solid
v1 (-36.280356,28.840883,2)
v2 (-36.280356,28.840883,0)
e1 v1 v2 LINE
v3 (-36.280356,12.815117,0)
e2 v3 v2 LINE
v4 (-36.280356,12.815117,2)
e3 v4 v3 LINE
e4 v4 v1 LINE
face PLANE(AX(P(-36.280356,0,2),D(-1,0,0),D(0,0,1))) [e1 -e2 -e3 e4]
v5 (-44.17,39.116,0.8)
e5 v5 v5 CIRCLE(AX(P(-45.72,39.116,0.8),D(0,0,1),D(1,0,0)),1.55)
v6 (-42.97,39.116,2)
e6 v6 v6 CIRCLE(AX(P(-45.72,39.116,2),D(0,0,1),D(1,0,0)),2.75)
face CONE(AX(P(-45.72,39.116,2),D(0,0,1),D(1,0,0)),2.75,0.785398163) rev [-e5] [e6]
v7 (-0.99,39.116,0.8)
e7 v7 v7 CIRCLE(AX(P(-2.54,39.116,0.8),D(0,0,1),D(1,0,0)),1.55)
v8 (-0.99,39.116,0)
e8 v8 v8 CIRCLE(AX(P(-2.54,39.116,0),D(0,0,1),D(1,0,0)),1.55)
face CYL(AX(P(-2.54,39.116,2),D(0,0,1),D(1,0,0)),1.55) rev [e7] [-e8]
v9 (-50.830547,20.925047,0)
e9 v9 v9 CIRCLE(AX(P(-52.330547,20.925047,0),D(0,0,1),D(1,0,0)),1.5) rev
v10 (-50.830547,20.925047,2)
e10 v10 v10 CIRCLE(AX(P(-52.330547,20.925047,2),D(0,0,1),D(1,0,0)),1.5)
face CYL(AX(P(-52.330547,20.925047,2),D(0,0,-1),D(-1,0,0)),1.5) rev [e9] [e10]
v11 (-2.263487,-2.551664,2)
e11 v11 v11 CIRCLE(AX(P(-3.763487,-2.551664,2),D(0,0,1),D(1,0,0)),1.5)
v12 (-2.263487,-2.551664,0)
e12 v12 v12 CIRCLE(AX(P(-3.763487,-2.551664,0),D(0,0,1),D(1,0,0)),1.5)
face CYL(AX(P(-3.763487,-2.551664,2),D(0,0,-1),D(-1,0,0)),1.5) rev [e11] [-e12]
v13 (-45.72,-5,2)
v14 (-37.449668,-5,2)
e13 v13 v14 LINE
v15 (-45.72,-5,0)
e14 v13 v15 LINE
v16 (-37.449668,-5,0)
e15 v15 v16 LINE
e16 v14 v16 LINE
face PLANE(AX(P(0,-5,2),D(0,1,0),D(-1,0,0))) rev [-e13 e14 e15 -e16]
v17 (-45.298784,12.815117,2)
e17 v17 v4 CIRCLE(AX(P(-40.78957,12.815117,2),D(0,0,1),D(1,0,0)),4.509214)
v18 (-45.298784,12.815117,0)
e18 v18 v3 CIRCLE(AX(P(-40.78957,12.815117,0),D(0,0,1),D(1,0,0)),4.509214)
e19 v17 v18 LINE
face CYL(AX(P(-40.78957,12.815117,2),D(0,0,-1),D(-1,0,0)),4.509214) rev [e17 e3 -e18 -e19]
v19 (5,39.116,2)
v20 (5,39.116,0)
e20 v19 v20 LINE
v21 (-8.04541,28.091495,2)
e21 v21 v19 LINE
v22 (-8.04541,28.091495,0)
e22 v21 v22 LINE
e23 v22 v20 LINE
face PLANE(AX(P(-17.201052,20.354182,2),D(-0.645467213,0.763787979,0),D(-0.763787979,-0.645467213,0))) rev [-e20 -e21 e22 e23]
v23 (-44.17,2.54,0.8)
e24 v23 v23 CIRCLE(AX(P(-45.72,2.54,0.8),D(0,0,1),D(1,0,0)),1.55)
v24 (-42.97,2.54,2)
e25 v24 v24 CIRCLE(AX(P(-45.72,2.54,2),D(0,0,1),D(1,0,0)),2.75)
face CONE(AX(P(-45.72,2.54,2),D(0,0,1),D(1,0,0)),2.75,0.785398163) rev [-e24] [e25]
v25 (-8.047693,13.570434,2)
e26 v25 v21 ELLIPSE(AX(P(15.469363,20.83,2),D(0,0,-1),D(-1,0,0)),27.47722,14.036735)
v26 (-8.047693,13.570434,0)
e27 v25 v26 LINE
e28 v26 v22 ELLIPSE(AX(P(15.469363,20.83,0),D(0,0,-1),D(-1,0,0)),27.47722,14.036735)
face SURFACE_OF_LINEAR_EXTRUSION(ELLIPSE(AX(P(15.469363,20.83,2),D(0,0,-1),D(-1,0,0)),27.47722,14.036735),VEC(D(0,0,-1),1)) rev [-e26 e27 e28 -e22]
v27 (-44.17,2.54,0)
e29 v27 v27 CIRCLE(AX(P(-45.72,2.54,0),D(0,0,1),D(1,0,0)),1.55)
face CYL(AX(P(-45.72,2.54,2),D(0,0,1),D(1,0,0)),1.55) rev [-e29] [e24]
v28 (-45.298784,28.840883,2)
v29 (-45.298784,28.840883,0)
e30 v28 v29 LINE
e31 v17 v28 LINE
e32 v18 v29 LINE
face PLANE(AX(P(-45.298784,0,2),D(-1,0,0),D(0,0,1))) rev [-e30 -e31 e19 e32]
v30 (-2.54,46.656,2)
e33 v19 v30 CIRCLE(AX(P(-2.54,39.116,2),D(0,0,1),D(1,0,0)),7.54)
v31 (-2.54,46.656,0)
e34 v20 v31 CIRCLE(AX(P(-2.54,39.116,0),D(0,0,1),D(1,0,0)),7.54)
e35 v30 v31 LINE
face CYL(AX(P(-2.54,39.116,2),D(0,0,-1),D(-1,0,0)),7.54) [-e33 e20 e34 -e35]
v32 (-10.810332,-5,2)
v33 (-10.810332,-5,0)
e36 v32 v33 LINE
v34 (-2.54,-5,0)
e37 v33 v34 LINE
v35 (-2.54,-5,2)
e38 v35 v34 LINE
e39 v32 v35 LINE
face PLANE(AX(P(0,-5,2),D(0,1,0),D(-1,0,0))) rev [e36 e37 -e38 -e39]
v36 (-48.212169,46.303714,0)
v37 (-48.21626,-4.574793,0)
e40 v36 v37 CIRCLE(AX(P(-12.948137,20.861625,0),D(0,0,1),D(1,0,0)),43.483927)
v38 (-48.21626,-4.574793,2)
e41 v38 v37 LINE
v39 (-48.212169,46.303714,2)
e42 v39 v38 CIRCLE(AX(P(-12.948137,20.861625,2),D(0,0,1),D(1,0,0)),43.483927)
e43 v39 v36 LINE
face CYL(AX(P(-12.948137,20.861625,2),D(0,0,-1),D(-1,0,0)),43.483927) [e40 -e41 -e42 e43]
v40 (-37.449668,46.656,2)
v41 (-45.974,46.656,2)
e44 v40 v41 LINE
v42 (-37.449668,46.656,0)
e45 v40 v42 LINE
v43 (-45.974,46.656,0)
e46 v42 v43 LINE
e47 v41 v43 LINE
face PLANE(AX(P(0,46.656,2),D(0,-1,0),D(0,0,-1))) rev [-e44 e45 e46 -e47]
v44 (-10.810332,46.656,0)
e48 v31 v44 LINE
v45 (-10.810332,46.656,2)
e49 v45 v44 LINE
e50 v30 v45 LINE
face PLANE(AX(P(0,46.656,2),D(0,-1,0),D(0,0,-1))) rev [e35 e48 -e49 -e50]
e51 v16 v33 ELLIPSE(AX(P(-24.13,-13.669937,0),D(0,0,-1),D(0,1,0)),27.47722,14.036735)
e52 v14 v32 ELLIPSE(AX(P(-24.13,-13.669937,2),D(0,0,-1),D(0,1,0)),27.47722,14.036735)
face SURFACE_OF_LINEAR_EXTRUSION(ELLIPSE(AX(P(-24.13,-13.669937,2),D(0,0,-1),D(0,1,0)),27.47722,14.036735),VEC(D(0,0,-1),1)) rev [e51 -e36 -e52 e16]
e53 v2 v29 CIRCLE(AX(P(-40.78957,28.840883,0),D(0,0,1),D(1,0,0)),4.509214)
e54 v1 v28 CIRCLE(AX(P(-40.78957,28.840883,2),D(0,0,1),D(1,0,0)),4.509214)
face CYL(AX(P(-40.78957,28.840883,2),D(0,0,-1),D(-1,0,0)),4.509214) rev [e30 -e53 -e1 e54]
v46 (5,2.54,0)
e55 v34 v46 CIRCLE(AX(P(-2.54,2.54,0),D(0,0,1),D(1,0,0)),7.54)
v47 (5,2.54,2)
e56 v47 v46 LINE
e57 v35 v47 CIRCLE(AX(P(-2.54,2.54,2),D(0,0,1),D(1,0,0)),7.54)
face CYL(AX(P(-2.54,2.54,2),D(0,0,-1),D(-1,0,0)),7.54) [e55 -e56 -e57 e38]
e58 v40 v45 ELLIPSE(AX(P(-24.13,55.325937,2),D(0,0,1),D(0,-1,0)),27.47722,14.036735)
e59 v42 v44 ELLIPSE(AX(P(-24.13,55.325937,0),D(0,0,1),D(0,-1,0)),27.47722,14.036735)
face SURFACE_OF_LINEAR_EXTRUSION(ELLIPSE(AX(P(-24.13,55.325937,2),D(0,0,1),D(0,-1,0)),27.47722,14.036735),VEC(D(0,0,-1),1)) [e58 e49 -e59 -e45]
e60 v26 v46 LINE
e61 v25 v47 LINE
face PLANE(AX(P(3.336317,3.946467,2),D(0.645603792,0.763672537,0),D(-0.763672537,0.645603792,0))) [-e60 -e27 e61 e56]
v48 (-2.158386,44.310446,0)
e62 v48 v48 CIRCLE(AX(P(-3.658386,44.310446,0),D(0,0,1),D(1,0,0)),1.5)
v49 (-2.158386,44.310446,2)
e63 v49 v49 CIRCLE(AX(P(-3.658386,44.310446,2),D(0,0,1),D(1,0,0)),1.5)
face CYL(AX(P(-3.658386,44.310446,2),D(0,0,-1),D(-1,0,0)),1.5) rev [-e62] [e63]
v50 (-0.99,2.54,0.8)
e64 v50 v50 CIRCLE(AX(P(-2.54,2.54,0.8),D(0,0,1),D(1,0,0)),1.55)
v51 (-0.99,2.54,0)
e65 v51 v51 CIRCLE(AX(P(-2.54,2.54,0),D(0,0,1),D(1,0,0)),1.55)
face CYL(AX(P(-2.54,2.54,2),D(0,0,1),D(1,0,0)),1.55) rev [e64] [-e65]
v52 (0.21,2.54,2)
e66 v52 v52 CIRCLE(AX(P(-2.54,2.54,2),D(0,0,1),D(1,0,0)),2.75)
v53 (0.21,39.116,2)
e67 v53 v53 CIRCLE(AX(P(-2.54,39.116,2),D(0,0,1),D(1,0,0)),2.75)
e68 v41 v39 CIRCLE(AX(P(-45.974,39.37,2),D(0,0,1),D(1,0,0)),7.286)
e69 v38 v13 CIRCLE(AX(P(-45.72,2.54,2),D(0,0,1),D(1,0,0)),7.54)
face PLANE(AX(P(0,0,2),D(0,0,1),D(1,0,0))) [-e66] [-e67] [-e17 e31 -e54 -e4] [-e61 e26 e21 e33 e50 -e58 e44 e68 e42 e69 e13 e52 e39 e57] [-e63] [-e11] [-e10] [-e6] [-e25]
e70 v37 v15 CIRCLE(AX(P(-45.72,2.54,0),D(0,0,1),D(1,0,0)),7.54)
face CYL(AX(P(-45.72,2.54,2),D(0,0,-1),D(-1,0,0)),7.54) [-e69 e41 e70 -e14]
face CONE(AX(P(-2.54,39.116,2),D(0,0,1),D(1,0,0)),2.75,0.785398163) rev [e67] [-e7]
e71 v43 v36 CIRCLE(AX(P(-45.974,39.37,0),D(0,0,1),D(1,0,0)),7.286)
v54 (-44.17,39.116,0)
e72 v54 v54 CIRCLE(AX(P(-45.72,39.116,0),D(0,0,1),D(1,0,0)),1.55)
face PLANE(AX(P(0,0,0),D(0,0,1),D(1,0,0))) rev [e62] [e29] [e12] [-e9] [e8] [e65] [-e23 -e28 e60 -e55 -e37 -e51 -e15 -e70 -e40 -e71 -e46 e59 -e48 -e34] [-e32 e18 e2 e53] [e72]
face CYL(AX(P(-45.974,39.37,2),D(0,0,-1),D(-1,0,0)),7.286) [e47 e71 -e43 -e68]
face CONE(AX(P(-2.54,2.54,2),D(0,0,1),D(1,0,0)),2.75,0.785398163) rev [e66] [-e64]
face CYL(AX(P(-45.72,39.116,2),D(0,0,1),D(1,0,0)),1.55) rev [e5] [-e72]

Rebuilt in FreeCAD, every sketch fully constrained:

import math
import FreeCAD as App
import Part
import Sketcher
Q = App.Units.Quantity


def add_polygon(sketch, points):
    """Adds a closed chain of lines whose ends are joined by coincident constraints."""
    first, n = sketch.GeometryCount, len(points)
    for a, b in zip(points, points[1:] + points[:1]):
        sketch.addGeometry(Part.LineSegment(App.Vector(*a, 0), App.Vector(*b, 0)), False)
    for i in range(n):
        sketch.addConstraint(Sketcher.Constraint("Coincident", first + i, 2, first + (i + 1) % n, 1))

doc = App.newDocument("Part")
params = doc.addObject("Spreadsheet::Sheet", "Params")
for row, (alias, value) in enumerate([
    ("sketch1_width", "1.7 in"),
    ("sketch1_width2", "1.71 in"),
    ("sketch1_height", "1.44 in"),
    ("pad1_length", "2 mm"),
    ("groove_angle", "360 deg"),
    ("linearpattern_pitch", "1.44 in"),
    ("linearpattern2_pitch", "56.589011 mm"),
    ("linearpattern3_pitch", "1.7 in"),
    ("pocket1_length", "2 mm"),
    ("pad2_length", "2 mm"),
    ("sketch5_height", "1.44 in"),
    ("pocket2_length", "2 mm"),
], start=1):
    params.set(f"A{row}", alias)
    params.set(f"B{row}", "=" + value)
    params.setAlias(f"B{row}", alias)

body = doc.addObject("PartDesign::Body", "Body")

# Sketch on XY plane
sketch1 = body.newObject("Sketcher::SketchObject", "Sketch")
sketch1.AttachmentSupport = (doc.getObject("XY_Plane"), [""])
sketch1.MapMode = "FlatFace"
sketch1.addGeometry([
    Part.LineSegment(App.Vector(5, 3, 0), App.Vector(5, 39, 0)),  # 0
    Part.ArcOfCircle(Part.Circle(App.Vector(-3, 39, 0), App.Vector(0, 0, 1), 8), math.radians(0), math.radians(90)),  # 1
    Part.LineSegment(App.Vector(-3, 47, 0), App.Vector(-46, 47, 0)),  # 2
    Part.ArcOfCircle(Part.Circle(App.Vector(-46, 39, 0), App.Vector(0, 0, 1), 7), math.radians(90), math.radians(180)),  # 3
    Part.LineSegment(App.Vector(-53, 39, 0), App.Vector(-53, 3, 0)),  # 4
    Part.ArcOfCircle(Part.Circle(App.Vector(-46, 3, 0), App.Vector(0, 0, 1), 8), math.radians(-180), math.radians(-90)),  # 5
    Part.LineSegment(App.Vector(-46, -5, 0), App.Vector(-3, -5, 0)),  # 6
    Part.ArcOfCircle(Part.Circle(App.Vector(-3, 3, 0), App.Vector(0, 0, 1), 8), math.radians(-90), math.radians(0)),  # 7
], False)
sketch1.addConstraint([
    Sketcher.Constraint("Tangent", 0, 2, 1, 1),
    Sketcher.Constraint("Tangent", 1, 2, 2, 1),
    Sketcher.Constraint("Tangent", 2, 2, 3, 1),
    Sketcher.Constraint("Tangent", 3, 2, 4, 1),
    Sketcher.Constraint("Tangent", 4, 2, 5, 1),
    Sketcher.Constraint("Tangent", 5, 2, 6, 1),
    Sketcher.Constraint("Tangent", 6, 2, 7, 1),
    Sketcher.Constraint("Tangent", 7, 2, 0, 1),
    Sketcher.Constraint("Vertical", 0),
    Sketcher.Constraint("Horizontal", 2),
    Sketcher.Constraint("Vertical", 4),
    Sketcher.Constraint("Horizontal", 6),
    Sketcher.Constraint("Equal", 1, 5),
    Sketcher.Constraint("Equal", 5, 7),
    Sketcher.Constraint("DistanceX", 6, 1, 6, 2, Q("1.7 in")),
    Sketcher.Constraint("DistanceX", 2, 2, 2, 1, Q("1.71 in")),
    Sketcher.Constraint("DistanceY", 0, 1, 0, 2, Q("1.44 in")),
    Sketcher.Constraint("DistanceX", 1, 3, -1, 1, Q("0.1 in")),
    Sketcher.Constraint("DistanceY", -1, 1, 5, 3, Q("0.1 in")),
    Sketcher.Constraint("Radius", 1, 7.54),
])
sketch1.setExpression("Constraints[14]", "Params.sketch1_width")
sketch1.setExpression("Constraints[15]", "Params.sketch1_width2")
sketch1.setExpression("Constraints[16]", "Params.sketch1_height")
pad1 = body.newObject("PartDesign::Pad", "Pad")
pad1.Profile = sketch1
pad1.setExpression("Length", "Params.pad1_length")

# Sketch on YZ plane
sketch2 = body.newObject("Sketcher::SketchObject", "Sketch001")
sketch2.AttachmentSupport = (doc.getObject("YZ_Plane"), [""])
sketch2.MapMode = "FlatFace"
sketch2.AttachmentOffset = App.Placement(App.Vector(0, 0, -0.1 * 25.4), App.Rotation())
add_polygon(sketch2, [(2.5, 0), (2.5, 2), (-0.2, 2), (1, 0.8), (1, 0)])  # lines 0-4
sketch2.addGeometry(Part.LineSegment(App.Vector(2.5, 2, 0), App.Vector(2.5, 0, 0)), True)  # axis
sketch2.addConstraint([
    Sketcher.Constraint("Vertical", 0),
    Sketcher.Constraint("Horizontal", 1),
    Sketcher.Constraint("Vertical", 3),
    Sketcher.Constraint("Horizontal", 4),
    Sketcher.Constraint("Vertical", 5),
    Sketcher.Constraint("Coincident", 5, 1, 0, 2),
    Sketcher.Constraint("PointOnObject", 3, 2, -1),
    Sketcher.Constraint("PointOnObject", 5, 2, -1),
    Sketcher.Constraint("Angle", 2, Q("-45 deg")),
    Sketcher.Constraint("DistanceX", -1, 1, 0, 2, Q("0.1 in")),
    Sketcher.Constraint("DistanceX", 1, 2, 1, 1, 2.75),
    Sketcher.Constraint("DistanceX", 4, 1, 4, 2, 1.55),
    Sketcher.Constraint("DistanceY", 0, 1, 0, 2, 2.0),
])
groove = body.newObject("PartDesign::Groove", "Groove")
groove.Profile = sketch2
groove.ReferenceAxis = (sketch2, ["Axis0"])
groove.setExpression("Angle", "Params.groove_angle")
doc.recompute()

linearpattern = body.newObject("PartDesign::LinearPattern", "LinearPattern")
linearpattern.Originals = [groove]
linearpattern.Direction = (doc.getObject("Y_Axis"), [""])
linearpattern.Mode = "offset"
linearpattern.setExpression("Offset", "Params.linearpattern_pitch")
linearpattern.Occurrences = 2
body.Tip = linearpattern
doc.recompute()

datumline = body.newObject("PartDesign::Line", "DatumLine")
datumline.Placement = App.Placement(App.Vector(0, 0, 0), App.Rotation(App.Vector(0, 0, 1), App.Vector(-0.763045672, 0.646344569, 0)))
linearpattern2 = body.newObject("PartDesign::LinearPattern", "LinearPattern001")
linearpattern2.Originals = [groove]
linearpattern2.Direction = (datumline, [""])
linearpattern2.Mode = "offset"
linearpattern2.setExpression("Offset", "Params.linearpattern2_pitch")
linearpattern2.Occurrences = 2
body.Tip = linearpattern2
doc.recompute()

linearpattern3 = body.newObject("PartDesign::LinearPattern", "LinearPattern002")
linearpattern3.Originals = [groove]
linearpattern3.Direction = (doc.getObject("X_Axis"), [""])
linearpattern3.Mode = "offset"
linearpattern3.setExpression("Offset", "Params.linearpattern3_pitch")
linearpattern3.Occurrences = 2
linearpattern3.Reversed = True
body.Tip = linearpattern3

# Sketch on XY plane
sketch3 = body.newObject("Sketcher::SketchObject", "Sketch002")
sketch3.AttachmentSupport = (doc.getObject("XY_Plane"), [""])
sketch3.MapMode = "FlatFace"
sketch3.addGeometry([
    Part.Circle(App.Vector(-3.7, 44.3, 0), App.Vector(0, 0, 1), 1.5),
    Part.Circle(App.Vector(-52.3, 20.9, 0), App.Vector(0, 0, 1), 1.5),
    Part.Circle(App.Vector(-3.8, -2.6, 0), App.Vector(0, 0, 1), 1.5),
], False)
sketch3.addConstraint([
    Sketcher.Constraint("Equal", 0, 1),
    Sketcher.Constraint("Equal", 1, 2),
    Sketcher.Constraint("Diameter", 0, 3.0),
    Sketcher.Constraint("DistanceY", 1, 3, 0, 3, 23.385399),
    Sketcher.Constraint("DistanceX", 2, 3, 0, 3, 0.1051),
    Sketcher.Constraint("DistanceX", 1, 3, 0, 3, 48.672161),
    Sketcher.Constraint("DistanceY", 2, 3, 0, 3, 46.86211),
    Sketcher.Constraint("DistanceX", 0, 3, -1, 1, 3.658386),
    Sketcher.Constraint("DistanceY", -1, 1, 0, 3, 44.310446),
])
pocket1 = body.newObject("PartDesign::Pocket", "Pocket")
pocket1.Profile = sketch3
pocket1.setExpression("Length", "Params.pocket1_length")
pocket1.Reversed = True

# Sketch on XY plane
sketch4 = body.newObject("Sketcher::SketchObject", "Sketch003")
sketch4.AttachmentSupport = (doc.getObject("XY_Plane"), [""])
sketch4.MapMode = "FlatFace"
sketch4.addGeometry([
    Part.LineSegment(App.Vector(-53.3, 22.1, 0), App.Vector(-53.3, 37.2, 0)),  # 0
    Part.ArcOfCircle(Part.Circle(App.Vector(-12.9, 20.9, 0), App.Vector(0, 0, 1), 43.5), math.radians(157.98), math.radians(160.35)),  # 1
    Part.ArcOfCircle(Part.Circle(App.Vector(-12.9, 20.9, 0), App.Vector(0, 0, 1), 43.5), math.radians(160), math.radians(200)),  # 2
    Part.ArcOfCircle(Part.Circle(App.Vector(-12.9, 20.9, 0), App.Vector(0, 0, 1), 43.5), math.radians(-160.27), math.radians(-157.98)),  # 3
    Part.LineSegment(App.Vector(-53.3, 4.6, 0), App.Vector(-53.3, 19.7, 0)),  # 4
    Part.ArcOfCircle(Part.Circle(App.Vector(-52.3, 20.9, 0), App.Vector(0, 0, 1), 1.5), math.radians(128), math.radians(232)),  # 5
], False)
sketch4.addConstraint([
    Sketcher.Constraint("Coincident", 0, 2, 1, 1),
    Sketcher.Constraint("Tangent", 1, 2, 2, 1),
    Sketcher.Constraint("Tangent", 2, 2, 3, 1),
    Sketcher.Constraint("Coincident", 3, 2, 4, 1),
    Sketcher.Constraint("Coincident", 4, 2, 5, 2),
    Sketcher.Constraint("Coincident", 5, 1, 0, 1),
    Sketcher.Constraint("Vertical", 0),
    Sketcher.Constraint("Vertical", 4),
    Sketcher.Constraint("Coincident", 3, 3, 1, 3),
    Sketcher.Constraint("Vertical", 0, 2, 3, 2),
    Sketcher.Constraint("Radius", 5, 1.5),
    Sketcher.Constraint("Radius", 3, 43.483928),
    Sketcher.Constraint("DistanceX", 0, 2, -1, 1, 53.26),
    Sketcher.Constraint("DistanceY", 0, 1, 0, 2, 15.062788),
    Sketcher.Constraint("DistanceY", 4, 1, 4, 2, 15.189632),
    Sketcher.Constraint("DistanceY", -1, 1, 0, 2, 37.16517),
    Sketcher.Constraint("DistanceX", 1, 2, -1, 1, 53.90052),
    Sketcher.Constraint("DistanceY", -1, 1, 2, 2, 6.184309),
    Sketcher.Constraint("DistanceY", -1, 1, 3, 2, 4.55808),
])
pad2 = body.newObject("PartDesign::Pad", "Pad001")
pad2.Profile = sketch4
pad2.setExpression("Length", "Params.pad2_length")

# Sketch on XY plane
sketch5 = body.newObject("Sketcher::SketchObject", "Sketch004")
sketch5.AttachmentSupport = (doc.getObject("XY_Plane"), [""])
sketch5.MapMode = "FlatFace"
sketch5.addGeometry([
    Part.ArcOfCircle(Part.Circle(App.Vector(-12.948137, 20.861625, 0), App.Vector(0, 0, 1), 43.483927), math.radians(144.190524), math.radians(157.979848)),  # 0
    Part.ArcOfCircle(Part.Circle(App.Vector(-45.974, 39.37, 0), App.Vector(0, 0, 1), 7.286), math.radians(107.889826), math.radians(175.695859)),  # 1
    Part.LineSegment(App.Vector(-53.239451, 39.91682, 0), App.Vector(-53.90052, 35.48196, 0)),  # 2
    Part.ArcOfCircle(Part.Circle(App.Vector(-12.948136, 20.861625, 0), App.Vector(0, 0, 1), 43.483928), math.radians(157.979848), math.radians(160.353021)),  # 3
    Part.BSplineCurve([App.Vector(-37.449668, 46.656, 0), App.Vector(-24.13, -31.75631, 0), App.Vector(-10.810332, 46.656, 0)], [3, 3], [5.033406034, 7.53296458], False, 2, [1, 0.315531822, 1], False),  # 4
    Part.LineSegment(App.Vector(-10.810332, 46.656, 0), App.Vector(-37.449668, 46.656, 0)),  # 5
    Part.LineSegment(App.Vector(-37.449668, -5, 0), App.Vector(-10.810332, -5, 0)),  # 6
    Part.BSplineCurve([App.Vector(-10.810332, -5, 0), App.Vector(-24.13, 73.41231, 0), App.Vector(-37.449668, -5, 0)], [3, 3], [5.033406034, 7.53296458], False, 2, [1, 0.315531822, 1], False),  # 7
    Part.ArcOfCircle(Part.Circle(App.Vector(-45.72, 2.54, 0), App.Vector(0, 0, 1), 7.54), math.radians(-173.417975), math.radians(-109.333671)),  # 8
    Part.ArcOfCircle(Part.Circle(App.Vector(-12.948137, 20.861625, 0), App.Vector(0, 0, 1), 43.483927), math.radians(-157.979848), math.radians(-144.199738)),  # 9
    Part.ArcOfCircle(Part.Circle(App.Vector(-12.948136, 20.861625, 0), App.Vector(0, 0, 1), 43.483928), math.radians(-160.273281), math.radians(-157.979848)),  # 10
    Part.LineSegment(App.Vector(-53.880133, 6.184309, 0), App.Vector(-53.210302, 1.675724, 0)),  # 11
    Part.LineSegment(App.Vector(-36.280356, 12.815117, 0), App.Vector(-36.280356, 28.840883, 0)),  # 12
    Part.ArcOfCircle(Part.Circle(App.Vector(-40.78957, 28.840883, 0), App.Vector(0, 0, 1), 4.509214), math.radians(0), math.radians(180)),  # 13
    Part.LineSegment(App.Vector(-45.298784, 28.840883, 0), App.Vector(-45.298784, 12.815117, 0)),  # 14
    Part.ArcOfCircle(Part.Circle(App.Vector(-40.78957, 12.815117, 0), App.Vector(0, 0, 1), 4.509214), math.radians(-180), math.radians(0)),  # 15
    Part.LineSegment(App.Vector(5, 39.116, 0), App.Vector(-8.04541, 28.091495, 0)),  # 16
    Part.BSplineCurve([App.Vector(-8.04541, 28.091495, 0), App.Vector(-16.636453, 20.831317, 0), App.Vector(-8.047693, 13.570434, 0)], [3, 3], [5.739468015, 6.826742025], False, 2, [1, 0.855833098, 1], False),  # 17
    Part.LineSegment(App.Vector(-8.047693, 13.570434, 0), App.Vector(5, 2.54, 0)),  # 18
    Part.LineSegment(App.Vector(5, 2.54, 0), App.Vector(5, 39.116, 0)),  # 19
], False)
sketch5.addConstraint([
    Sketcher.Constraint("Block", 4),
    Sketcher.Constraint("Block", 7),
    Sketcher.Constraint("Block", 17),
    Sketcher.Constraint("Coincident", 0, 1, 1, 1),
    Sketcher.Constraint("Coincident", 1, 2, 2, 1),
    Sketcher.Constraint("Coincident", 2, 2, 3, 2),
    Sketcher.Constraint("Tangent", 3, 1, 0, 2),
    Sketcher.Constraint("Coincident", 4, 1, 5, 2),
    Sketcher.Constraint("Coincident", 5, 1, 4, 2),
    Sketcher.Constraint("Coincident", 6, 1, 7, 2),
    Sketcher.Constraint("Coincident", 7, 1, 6, 2),
    Sketcher.Constraint("Coincident", 8, 2, 9, 2),
    Sketcher.Constraint("Tangent", 9, 1, 10, 2),
    Sketcher.Constraint("Coincident", 10, 1, 11, 1),
    Sketcher.Constraint("Coincident", 11, 2, 8, 1),
    Sketcher.Constraint("Tangent", 12, 2, 13, 1),
    Sketcher.Constraint("Tangent", 13, 2, 14, 1),
    Sketcher.Constraint("Tangent", 14, 2, 15, 1),
    Sketcher.Constraint("Tangent", 15, 2, 12, 1),
    Sketcher.Constraint("Coincident", 16, 2, 17, 1),
    Sketcher.Constraint("Coincident", 17, 2, 18, 1),
    Sketcher.Constraint("Coincident", 18, 2, 19, 1),
    Sketcher.Constraint("Coincident", 19, 2, 16, 1),
    Sketcher.Constraint("Vertical", 12),
    Sketcher.Constraint("Vertical", 14),
    Sketcher.Constraint("Vertical", 19),
    Sketcher.Constraint("Coincident", 9, 3, 0, 3),
    Sketcher.Constraint("Equal", 0, 3),
    Sketcher.Constraint("Equal", 3, 9),
    Sketcher.Constraint("Equal", 9, 10),
    Sketcher.Constraint("Horizontal", 8, 3, 18, 2),
    Sketcher.Constraint("Vertical", 3, 1, 9, 1),
    Sketcher.Constraint("DistanceY", 19, 1, 19, 2, Q("1.44 in")),
    Sketcher.Constraint("DistanceX", 8, 3, -1, 1, Q("1.8 in")),
    Sketcher.Constraint("DistanceY", -1, 1, 8, 3, Q("0.1 in")),
    Sketcher.Constraint("DistanceX", 1, 3, -1, 1, Q("1.81 in")),
    Sketcher.Constraint("DistanceY", -1, 1, 1, 3, Q("1.55 in")),
    Sketcher.Constraint("Radius", 1, 7.286),
    Sketcher.Constraint("Radius", 8, 7.54),
    Sketcher.Constraint("Radius", 10, 43.483928),
    Sketcher.Constraint("Radius", 13, 4.509214),
    Sketcher.Constraint("DistanceX", 3, 1, -1, 1, 53.26),
    Sketcher.Constraint("DistanceX", -1, 1, 18, 2, 5.0),
    Sketcher.Constraint("DistanceX", 0, 1, 13, 3, 7.422599),
    Sketcher.Constraint("Distance", 2, 4.48386),
    Sketcher.Constraint("Distance", 11, 4.558072),
    Sketcher.Constraint("DistanceY", 12, 1, 12, 2, 16.025767),
    Sketcher.Constraint("DistanceX", 13, 3, -1, 1, 40.78957),
    Sketcher.Constraint("DistanceX", 1, 2, -1, 1, 53.239451),
    Sketcher.Constraint("DistanceX", 2, 2, -1, 1, 53.90052),
    Sketcher.Constraint("DistanceY", -1, 1, 10, 1, 6.184309),
    Sketcher.Constraint("DistanceY", 0, 3, 13, 3, 7.979258),
])
sketch5.setExpression("Constraints[32]", "Params.sketch5_height")
pocket2 = body.newObject("PartDesign::Pocket", "Pocket001")
pocket2.Profile = sketch5
pocket2.setExpression("Length", "Params.pocket2_length")
pocket2.Reversed = True

doc.recompute()
